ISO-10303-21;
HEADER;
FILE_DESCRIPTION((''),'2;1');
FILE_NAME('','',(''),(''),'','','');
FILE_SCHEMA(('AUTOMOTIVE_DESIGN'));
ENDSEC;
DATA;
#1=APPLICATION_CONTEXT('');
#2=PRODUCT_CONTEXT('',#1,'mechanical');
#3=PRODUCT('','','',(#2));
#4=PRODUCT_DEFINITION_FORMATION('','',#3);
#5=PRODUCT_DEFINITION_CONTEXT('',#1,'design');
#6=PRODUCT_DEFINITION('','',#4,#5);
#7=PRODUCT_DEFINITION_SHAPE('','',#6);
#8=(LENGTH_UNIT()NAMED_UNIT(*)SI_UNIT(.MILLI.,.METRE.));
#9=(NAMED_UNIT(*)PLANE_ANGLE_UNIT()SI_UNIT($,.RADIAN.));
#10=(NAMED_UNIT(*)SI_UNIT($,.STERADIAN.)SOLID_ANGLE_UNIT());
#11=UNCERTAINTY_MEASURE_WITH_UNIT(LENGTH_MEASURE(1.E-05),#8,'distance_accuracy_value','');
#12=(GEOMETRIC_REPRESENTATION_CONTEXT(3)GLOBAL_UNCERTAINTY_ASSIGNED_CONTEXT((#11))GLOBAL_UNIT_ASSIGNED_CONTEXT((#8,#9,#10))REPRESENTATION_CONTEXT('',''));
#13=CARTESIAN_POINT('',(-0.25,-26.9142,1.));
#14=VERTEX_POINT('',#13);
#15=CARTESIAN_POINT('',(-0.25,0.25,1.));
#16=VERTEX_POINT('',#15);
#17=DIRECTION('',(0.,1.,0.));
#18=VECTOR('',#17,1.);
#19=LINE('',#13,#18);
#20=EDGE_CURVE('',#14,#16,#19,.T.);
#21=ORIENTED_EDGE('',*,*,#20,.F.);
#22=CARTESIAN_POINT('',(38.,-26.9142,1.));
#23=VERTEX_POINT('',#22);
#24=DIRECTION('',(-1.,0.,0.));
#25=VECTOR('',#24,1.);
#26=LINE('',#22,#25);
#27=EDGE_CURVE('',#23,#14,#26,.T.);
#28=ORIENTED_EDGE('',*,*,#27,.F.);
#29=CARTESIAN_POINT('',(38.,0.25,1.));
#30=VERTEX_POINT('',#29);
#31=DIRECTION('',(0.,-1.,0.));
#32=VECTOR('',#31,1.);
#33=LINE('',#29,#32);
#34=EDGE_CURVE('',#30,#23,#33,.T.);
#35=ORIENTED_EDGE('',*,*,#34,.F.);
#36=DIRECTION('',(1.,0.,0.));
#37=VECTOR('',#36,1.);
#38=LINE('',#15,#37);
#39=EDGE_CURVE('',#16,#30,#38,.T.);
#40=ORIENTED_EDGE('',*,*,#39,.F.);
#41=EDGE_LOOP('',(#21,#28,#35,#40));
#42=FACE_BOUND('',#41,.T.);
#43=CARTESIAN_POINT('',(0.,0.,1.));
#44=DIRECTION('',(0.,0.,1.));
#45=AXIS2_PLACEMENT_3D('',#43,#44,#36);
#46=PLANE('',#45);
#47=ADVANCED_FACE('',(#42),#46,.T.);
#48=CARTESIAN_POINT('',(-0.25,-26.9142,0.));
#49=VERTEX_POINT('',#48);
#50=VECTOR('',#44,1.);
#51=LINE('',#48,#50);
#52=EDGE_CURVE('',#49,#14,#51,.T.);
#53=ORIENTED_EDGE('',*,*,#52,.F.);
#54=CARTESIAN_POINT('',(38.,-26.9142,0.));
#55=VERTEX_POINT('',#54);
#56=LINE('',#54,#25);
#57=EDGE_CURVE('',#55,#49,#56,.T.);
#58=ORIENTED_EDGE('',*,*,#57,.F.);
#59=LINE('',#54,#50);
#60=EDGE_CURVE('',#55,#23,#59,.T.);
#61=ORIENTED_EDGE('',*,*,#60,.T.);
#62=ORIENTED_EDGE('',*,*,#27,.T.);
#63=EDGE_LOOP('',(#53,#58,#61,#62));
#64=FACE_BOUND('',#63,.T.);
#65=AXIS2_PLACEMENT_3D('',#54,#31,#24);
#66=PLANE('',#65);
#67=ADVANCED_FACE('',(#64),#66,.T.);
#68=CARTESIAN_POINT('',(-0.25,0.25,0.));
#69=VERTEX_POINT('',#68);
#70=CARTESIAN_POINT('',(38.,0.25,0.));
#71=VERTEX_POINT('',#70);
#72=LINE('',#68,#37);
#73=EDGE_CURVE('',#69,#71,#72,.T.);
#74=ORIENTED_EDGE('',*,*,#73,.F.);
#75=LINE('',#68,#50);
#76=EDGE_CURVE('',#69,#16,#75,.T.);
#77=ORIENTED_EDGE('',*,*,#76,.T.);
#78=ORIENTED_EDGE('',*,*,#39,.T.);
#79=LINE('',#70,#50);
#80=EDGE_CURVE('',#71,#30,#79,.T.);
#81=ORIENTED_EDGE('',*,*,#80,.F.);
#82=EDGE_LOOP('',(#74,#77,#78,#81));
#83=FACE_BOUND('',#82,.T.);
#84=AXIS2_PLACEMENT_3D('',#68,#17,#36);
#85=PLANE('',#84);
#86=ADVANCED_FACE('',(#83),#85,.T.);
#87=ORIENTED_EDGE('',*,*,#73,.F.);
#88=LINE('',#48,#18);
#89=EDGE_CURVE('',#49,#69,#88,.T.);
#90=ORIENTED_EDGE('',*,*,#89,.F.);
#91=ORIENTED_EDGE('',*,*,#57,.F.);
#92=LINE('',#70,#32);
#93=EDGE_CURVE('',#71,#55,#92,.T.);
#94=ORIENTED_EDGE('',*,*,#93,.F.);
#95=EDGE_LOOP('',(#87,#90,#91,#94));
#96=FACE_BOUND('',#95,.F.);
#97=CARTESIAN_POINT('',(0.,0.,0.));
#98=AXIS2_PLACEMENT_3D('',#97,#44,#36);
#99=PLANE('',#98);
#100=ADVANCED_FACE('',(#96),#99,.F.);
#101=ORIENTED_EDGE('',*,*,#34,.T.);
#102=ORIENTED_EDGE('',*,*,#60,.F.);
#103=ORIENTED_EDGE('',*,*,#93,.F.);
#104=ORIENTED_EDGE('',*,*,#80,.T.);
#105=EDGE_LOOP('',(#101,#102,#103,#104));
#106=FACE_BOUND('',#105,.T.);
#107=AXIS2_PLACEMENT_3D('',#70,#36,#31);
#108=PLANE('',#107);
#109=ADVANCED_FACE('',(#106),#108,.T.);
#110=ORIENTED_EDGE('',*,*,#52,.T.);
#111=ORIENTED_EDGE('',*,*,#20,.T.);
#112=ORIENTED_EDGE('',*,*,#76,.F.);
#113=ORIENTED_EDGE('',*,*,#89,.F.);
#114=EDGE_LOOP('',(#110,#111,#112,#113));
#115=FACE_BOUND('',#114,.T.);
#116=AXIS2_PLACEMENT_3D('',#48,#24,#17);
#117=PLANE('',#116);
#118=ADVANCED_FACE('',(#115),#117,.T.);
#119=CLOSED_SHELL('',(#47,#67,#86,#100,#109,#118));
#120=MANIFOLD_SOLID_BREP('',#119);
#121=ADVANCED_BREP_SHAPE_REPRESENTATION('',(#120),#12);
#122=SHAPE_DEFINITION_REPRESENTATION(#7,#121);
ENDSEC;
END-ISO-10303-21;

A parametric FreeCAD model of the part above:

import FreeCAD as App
import Part
import Sketcher
from FreeCAD import Vector
Q = App.Units.Quantity


def add_polygon(sketch, points):
    """Adds a closed chain of lines whose ends are joined by coincident constraints."""
    first, n = sketch.GeometryCount, len(points)
    for a, b in zip(points, points[1:] + points[:1]):
        sketch.addGeometry(Part.LineSegment(App.Vector(*a, 0), App.Vector(*b, 0)), False)
    for i in range(n):
        sketch.addConstraint(Sketcher.Constraint("Coincident", first + i, 2, first + (i + 1) % n, 1))

doc = App.newDocument("Part")
body = doc.addObject("PartDesign::Body", "Body")

# Sketch on XY plane
sketch1 = body.newObject("Sketcher::SketchObject", "Sketch")
sketch1.AttachmentSupport = (doc.getObject("XY_Plane"), [""])
sketch1.MapMode = "FlatFace"
add_polygon(sketch1, [(38, 0), (0, 0), (0, -27), (38, -27)])  # lines 0-3
sketch1.addConstraint(Sketcher.Constraint("Horizontal", 0))
sketch1.addConstraint(Sketcher.Constraint("Vertical", 1))
sketch1.addConstraint(Sketcher.Constraint("Horizontal", 2))
sketch1.addConstraint(Sketcher.Constraint("Vertical", 3))
sketch1.addConstraint(Sketcher.Constraint("DistanceX", -1, 1, 2, 2, Q("38 mm")))
sketch1.addConstraint(Sketcher.Constraint("DistanceX", 0, 2, 0, 1, Q("38.25 mm")))
sketch1.addConstraint(Sketcher.Constraint("DistanceY", -1, 1, 0, 2, Q("0.25 mm")))
sketch1.addConstraint(Sketcher.Constraint("DistanceY", 1, 2, 1, 1, Q("27.1642 mm")))
pad1 = body.newObject("PartDesign::Pad", "Pad")
pad1.Profile = sketch1
pad1.Length = 1

doc.recompute()
